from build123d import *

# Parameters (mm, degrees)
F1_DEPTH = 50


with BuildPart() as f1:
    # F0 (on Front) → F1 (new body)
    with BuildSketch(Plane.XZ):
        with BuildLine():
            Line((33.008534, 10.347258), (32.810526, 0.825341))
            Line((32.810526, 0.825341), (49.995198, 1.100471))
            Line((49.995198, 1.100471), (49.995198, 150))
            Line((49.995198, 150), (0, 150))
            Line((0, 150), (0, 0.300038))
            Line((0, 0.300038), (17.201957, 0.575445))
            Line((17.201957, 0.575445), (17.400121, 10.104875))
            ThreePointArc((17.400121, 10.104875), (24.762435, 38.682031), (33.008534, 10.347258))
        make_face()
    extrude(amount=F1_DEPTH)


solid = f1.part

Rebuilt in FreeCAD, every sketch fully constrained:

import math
import FreeCAD as App
import Part
import Sketcher
Q = App.Units.Quantity

doc = App.newDocument("Part")
body = doc.addObject("PartDesign::Body", "Body")

# Sketch on XZ plane
sketch1 = doc.addObject("Sketcher::SketchObject", "Sketch")
body.addObject(sketch1)
sketch1.AttachmentSupport = (doc.XZ_Plane, [""])
sketch1.MapMode = "FlatFace"
sketch1.addGeometry([
    Part.LineSegment(App.Vector(33.008534, 10.347258, 0), App.Vector(32.810526, 0.825341, 0)),  # 0
    Part.LineSegment(App.Vector(32.810526, 0.825341, 0), App.Vector(49.995198, 1.100471, 0)),  # 1
    Part.LineSegment(App.Vector(49.995198, 1.100471, 0), App.Vector(49.995198, 150, 0)),  # 2
    Part.LineSegment(App.Vector(49.995198, 150, 0), App.Vector(0, 150, 0)),  # 3
    Part.LineSegment(App.Vector(0, 150, 0), App.Vector(0, 0.300038, 0)),  # 4
    Part.LineSegment(App.Vector(0, 0.300038, 0), App.Vector(17.201957, 0.575445, 0)),  # 5
    Part.LineSegment(App.Vector(17.201957, 0.575445, 0), App.Vector(17.400121, 10.104875, 0)),  # 6
    Part.ArcOfCircle(Part.Circle(App.Vector(25, 23.383875, 0), App.Vector(0, 0, 1), 15.3), math.radians(-58.437147), math.radians(240.216496)),  # 7
], False)
sketch1.addConstraint([
    Sketcher.Constraint("Coincident", 0, 2, 1, 1),
    Sketcher.Constraint("Coincident", 1, 2, 2, 1),
    Sketcher.Constraint("Coincident", 2, 2, 3, 1),
    Sketcher.Constraint("Coincident", 3, 2, 4, 1),
    Sketcher.Constraint("Coincident", 4, 2, 5, 1),
    Sketcher.Constraint("Coincident", 5, 2, 6, 1),
    Sketcher.Constraint("Coincident", 6, 2, 7, 2),
    Sketcher.Constraint("Coincident", 7, 1, 0, 1),
    Sketcher.Constraint("Vertical", 2),
    Sketcher.Constraint("Horizontal", 3),
    Sketcher.Constraint("Vertical", 4),
    Sketcher.Constraint("PointOnObject", 3, 2, -2),
    Sketcher.Constraint("Parallel", 1, 5),
    Sketcher.Constraint("Parallel", 0, 6),
    Sketcher.Constraint("Radius", 7, Q("15.3 mm")),
    Sketcher.Constraint("DistanceX", -1, 1, 7, 3, Q("25 mm")),
    Sketcher.Constraint("DistanceY", -1, 1, 2, 2, Q("150 mm")),
    Sketcher.Constraint("DistanceX", 3, 2, 3, 1, Q("49.995198 mm")),
    Sketcher.Constraint("DistanceY", 6, 2, 7, 3, Q("13.279 mm")),
    Sketcher.Constraint("DistanceY", 2, 1, 2, 2, Q("148.899529 mm")),
    Sketcher.Constraint("DistanceY", 4, 2, 4, 1, Q("149.699962 mm")),
    Sketcher.Constraint("Distance", 5, Q("17.204162 mm")),
    Sketcher.Constraint("Distance", 6, Q("9.53149 mm")),
    Sketcher.Constraint("DistanceY", -1, 1, 0, 2, Q("0.825341 mm")),
    Sketcher.Constraint("DistanceX", 0, 2, 1, 2, Q("17.184672 mm")),
])
pad1 = doc.addObject("PartDesign::Pad", "Pad")
body.addObject(pad1)
pad1.Profile = sketch1
pad1.Length = 50

doc.recompute()
